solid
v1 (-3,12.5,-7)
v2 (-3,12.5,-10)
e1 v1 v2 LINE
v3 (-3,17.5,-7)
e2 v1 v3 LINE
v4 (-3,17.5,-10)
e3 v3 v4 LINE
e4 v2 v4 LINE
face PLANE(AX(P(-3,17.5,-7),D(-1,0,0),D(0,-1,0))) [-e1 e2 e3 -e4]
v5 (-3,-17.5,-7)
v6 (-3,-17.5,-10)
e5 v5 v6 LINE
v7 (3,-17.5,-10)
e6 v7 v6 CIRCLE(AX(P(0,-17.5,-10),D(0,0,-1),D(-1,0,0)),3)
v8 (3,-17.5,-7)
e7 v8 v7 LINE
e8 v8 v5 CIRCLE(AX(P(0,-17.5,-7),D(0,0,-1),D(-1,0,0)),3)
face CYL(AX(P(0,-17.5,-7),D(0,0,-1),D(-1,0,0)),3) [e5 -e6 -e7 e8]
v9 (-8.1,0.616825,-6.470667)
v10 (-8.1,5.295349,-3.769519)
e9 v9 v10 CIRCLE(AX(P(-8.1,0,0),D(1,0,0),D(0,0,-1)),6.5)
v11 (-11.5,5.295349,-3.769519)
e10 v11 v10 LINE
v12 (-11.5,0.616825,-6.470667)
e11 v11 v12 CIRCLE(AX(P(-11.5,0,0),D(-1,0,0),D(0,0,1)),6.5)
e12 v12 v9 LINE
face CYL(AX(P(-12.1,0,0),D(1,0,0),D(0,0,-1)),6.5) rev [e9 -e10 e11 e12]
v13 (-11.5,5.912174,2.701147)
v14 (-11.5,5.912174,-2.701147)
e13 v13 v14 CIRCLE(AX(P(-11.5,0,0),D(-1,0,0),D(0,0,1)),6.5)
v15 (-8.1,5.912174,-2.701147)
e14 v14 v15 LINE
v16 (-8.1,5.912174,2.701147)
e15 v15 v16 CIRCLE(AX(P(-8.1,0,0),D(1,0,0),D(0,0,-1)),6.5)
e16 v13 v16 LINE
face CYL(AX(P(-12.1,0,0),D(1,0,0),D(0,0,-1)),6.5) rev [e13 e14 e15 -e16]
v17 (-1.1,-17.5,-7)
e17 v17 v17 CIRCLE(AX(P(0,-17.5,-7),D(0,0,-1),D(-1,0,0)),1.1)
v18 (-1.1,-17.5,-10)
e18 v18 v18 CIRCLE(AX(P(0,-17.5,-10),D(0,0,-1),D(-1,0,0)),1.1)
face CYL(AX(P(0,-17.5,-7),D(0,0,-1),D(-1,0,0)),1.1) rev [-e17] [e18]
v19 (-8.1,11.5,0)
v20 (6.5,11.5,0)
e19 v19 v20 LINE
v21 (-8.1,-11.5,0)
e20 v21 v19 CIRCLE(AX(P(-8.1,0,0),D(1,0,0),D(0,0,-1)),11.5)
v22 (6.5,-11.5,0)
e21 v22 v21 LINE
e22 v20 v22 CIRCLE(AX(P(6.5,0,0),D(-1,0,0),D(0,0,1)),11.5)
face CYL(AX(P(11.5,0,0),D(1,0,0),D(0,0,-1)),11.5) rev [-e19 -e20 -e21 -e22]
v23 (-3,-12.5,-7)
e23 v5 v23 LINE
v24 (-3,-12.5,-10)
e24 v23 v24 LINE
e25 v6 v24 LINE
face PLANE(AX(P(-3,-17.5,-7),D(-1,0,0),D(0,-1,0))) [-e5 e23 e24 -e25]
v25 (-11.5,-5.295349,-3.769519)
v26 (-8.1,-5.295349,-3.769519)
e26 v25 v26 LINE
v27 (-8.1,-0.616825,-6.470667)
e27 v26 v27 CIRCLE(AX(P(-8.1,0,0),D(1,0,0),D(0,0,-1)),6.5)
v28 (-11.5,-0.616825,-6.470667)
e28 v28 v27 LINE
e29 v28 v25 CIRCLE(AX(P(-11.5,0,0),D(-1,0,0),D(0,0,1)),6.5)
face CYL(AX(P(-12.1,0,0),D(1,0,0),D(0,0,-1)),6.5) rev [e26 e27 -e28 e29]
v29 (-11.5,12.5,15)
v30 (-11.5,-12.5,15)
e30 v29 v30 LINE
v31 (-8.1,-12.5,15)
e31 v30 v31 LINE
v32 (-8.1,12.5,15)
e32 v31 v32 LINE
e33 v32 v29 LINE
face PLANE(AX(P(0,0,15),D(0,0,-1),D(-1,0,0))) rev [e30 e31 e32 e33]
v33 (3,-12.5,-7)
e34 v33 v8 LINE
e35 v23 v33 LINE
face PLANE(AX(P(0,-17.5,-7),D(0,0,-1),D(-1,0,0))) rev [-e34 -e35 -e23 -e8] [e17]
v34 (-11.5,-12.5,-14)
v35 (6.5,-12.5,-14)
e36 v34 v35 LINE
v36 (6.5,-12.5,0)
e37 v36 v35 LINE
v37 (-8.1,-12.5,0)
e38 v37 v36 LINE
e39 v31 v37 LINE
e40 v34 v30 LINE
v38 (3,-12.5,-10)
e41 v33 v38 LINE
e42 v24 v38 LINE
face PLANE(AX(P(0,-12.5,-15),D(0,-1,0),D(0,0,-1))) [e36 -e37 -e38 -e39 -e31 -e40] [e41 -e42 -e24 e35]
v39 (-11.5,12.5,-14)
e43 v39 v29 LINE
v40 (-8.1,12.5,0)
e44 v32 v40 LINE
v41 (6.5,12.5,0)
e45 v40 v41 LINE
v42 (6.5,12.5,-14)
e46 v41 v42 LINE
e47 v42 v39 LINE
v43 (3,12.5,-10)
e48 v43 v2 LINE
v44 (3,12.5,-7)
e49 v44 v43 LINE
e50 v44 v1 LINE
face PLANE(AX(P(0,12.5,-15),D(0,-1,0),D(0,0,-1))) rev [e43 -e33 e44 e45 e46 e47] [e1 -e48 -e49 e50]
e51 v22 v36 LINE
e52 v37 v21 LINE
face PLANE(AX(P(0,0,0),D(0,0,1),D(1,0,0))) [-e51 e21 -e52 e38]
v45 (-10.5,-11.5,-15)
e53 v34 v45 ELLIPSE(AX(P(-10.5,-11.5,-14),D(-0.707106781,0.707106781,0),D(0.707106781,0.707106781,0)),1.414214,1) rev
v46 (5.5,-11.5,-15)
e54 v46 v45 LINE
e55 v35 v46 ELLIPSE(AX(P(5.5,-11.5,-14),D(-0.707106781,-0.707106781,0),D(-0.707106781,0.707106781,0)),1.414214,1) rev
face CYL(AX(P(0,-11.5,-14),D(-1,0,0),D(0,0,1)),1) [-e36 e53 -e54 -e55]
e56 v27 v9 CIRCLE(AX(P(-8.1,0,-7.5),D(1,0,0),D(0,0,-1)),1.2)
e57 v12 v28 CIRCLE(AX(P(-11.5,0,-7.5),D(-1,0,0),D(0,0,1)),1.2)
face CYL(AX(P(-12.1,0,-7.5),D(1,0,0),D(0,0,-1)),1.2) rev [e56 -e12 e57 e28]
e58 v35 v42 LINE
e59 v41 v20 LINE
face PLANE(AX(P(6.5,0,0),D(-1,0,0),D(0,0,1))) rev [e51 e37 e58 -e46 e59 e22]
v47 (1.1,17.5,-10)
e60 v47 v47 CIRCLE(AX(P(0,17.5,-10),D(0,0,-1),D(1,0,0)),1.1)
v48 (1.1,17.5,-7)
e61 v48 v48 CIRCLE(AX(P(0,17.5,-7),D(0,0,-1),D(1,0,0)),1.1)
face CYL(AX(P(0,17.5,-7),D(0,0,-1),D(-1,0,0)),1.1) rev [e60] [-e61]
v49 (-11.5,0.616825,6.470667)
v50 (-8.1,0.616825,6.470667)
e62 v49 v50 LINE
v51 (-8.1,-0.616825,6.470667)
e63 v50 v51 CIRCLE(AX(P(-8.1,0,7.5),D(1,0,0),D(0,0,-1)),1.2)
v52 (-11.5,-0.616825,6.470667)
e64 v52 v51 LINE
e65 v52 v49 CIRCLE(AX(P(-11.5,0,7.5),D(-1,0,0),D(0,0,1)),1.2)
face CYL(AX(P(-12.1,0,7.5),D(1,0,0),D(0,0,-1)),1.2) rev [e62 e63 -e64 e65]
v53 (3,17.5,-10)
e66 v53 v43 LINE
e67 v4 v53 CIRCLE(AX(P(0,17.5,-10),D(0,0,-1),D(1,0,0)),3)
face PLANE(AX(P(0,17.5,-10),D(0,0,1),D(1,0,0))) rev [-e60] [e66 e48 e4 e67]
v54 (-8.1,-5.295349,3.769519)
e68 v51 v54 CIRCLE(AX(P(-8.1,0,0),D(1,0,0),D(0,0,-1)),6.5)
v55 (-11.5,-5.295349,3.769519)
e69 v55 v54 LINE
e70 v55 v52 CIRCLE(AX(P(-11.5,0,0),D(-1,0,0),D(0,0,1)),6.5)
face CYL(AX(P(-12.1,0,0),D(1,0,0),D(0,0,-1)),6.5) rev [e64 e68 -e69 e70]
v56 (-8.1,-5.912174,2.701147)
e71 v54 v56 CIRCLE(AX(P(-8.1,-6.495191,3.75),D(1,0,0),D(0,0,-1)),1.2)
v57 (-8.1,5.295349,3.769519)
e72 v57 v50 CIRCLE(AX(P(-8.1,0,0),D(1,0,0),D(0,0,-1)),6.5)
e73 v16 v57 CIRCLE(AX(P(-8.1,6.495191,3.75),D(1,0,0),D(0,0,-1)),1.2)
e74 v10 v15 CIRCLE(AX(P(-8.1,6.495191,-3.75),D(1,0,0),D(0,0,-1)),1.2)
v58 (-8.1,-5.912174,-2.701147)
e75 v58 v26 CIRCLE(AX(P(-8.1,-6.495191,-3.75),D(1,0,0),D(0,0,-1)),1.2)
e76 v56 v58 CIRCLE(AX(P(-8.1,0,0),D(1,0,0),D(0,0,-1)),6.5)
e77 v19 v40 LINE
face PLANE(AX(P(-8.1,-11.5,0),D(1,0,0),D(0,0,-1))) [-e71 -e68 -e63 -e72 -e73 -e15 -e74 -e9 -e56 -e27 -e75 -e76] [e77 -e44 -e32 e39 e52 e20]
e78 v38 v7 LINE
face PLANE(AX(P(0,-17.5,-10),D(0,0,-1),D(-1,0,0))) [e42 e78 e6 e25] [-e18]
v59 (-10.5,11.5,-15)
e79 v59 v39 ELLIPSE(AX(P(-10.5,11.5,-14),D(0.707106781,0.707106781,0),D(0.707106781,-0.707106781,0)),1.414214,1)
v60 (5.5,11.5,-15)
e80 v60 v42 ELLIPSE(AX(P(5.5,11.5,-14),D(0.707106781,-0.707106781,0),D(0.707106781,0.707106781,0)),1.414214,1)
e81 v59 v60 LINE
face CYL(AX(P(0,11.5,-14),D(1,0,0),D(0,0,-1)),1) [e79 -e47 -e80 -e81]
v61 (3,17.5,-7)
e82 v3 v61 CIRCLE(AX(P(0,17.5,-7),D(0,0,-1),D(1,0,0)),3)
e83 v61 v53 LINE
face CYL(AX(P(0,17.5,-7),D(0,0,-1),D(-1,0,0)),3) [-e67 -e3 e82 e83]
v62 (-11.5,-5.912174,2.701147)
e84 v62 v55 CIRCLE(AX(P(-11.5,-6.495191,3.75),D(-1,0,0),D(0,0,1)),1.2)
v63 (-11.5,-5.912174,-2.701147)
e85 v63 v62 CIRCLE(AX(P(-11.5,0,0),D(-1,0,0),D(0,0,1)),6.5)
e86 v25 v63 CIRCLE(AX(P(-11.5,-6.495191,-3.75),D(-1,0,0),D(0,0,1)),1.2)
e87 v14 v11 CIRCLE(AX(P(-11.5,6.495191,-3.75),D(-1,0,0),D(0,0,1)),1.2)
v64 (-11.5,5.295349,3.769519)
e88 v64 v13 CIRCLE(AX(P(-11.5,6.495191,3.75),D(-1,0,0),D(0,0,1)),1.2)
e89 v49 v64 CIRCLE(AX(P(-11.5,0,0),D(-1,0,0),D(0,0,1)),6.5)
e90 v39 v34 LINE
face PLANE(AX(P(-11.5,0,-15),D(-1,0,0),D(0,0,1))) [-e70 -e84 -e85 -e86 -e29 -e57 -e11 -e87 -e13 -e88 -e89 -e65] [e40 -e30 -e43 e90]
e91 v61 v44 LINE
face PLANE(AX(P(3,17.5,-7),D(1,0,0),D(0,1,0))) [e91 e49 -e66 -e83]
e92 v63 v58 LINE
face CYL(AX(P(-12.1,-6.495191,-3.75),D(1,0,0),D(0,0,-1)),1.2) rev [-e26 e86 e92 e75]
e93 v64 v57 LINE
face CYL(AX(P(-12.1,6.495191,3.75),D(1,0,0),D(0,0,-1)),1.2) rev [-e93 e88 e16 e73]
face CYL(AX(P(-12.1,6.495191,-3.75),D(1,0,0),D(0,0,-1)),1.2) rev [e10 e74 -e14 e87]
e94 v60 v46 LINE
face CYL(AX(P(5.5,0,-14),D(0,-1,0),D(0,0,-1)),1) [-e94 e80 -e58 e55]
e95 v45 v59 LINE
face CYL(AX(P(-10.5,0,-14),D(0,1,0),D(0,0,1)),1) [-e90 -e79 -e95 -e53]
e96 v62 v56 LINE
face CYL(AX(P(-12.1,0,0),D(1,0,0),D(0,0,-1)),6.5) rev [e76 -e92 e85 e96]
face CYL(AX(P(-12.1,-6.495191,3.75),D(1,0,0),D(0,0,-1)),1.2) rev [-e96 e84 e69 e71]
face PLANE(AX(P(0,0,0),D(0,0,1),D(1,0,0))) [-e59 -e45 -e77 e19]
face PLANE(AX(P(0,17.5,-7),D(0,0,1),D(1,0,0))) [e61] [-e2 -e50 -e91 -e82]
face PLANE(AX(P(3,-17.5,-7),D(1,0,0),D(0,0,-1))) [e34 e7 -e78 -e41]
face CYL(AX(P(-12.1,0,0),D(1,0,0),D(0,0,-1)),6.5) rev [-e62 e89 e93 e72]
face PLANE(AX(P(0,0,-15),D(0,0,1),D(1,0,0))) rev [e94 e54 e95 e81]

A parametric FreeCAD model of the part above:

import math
import FreeCAD as App
import Part
import Sketcher
from FreeCAD import Vector


def edges_at(feature, points):
    """Names of the edges that pass closest to the given points."""
    edges = feature.Shape.Edges
    near = lambda p: min(range(len(edges)), key=lambda i: edges[i].distToShape(Part.Vertex(*p))[0])
    return sorted({f"Edge{near(p) + 1}" for p in points})

doc = App.newDocument("Part")
body = doc.addObject("PartDesign::Body", "Body")

# Sketch on XY plane
sketch1 = doc.addObject("Sketcher::SketchObject", "Sketch")
body.addObject(sketch1)
sketch1.AttachmentSupport = (doc.XY_Plane, [""])
sketch1.MapMode = "FlatFace"
sketch1.addGeometry([
    Part.LineSegment(Vector(-12, 12, 0), Vector(-12, -12, 0)),
    Part.LineSegment(Vector(-12, -12, 0), Vector(12, -12, 0)),
    Part.LineSegment(Vector(12, -12, 0), Vector(12, 12, 0)),
    Part.LineSegment(Vector(12, 12, 0), Vector(-12, 12, 0)),
], False)
sketch1.addConstraint([
    Sketcher.Constraint("Coincident", 0, 2, 1, 1),
    Sketcher.Constraint("Coincident", 1, 2, 2, 1),
    Sketcher.Constraint("Coincident", 2, 2, 3, 1),
    Sketcher.Constraint("Coincident", 3, 2, 0, 1),
    Sketcher.Constraint("Vertical", 0),
    Sketcher.Constraint("Horizontal", 1),
    Sketcher.Constraint("Vertical", 2),
    Sketcher.Constraint("Horizontal", 3),
    Sketcher.Constraint("Symmetric", 0, 2, 2, 2, -1, 1),
    Sketcher.Constraint("DistanceX", 1, 1, 1, 2, 23.0),
    Sketcher.Constraint("DistanceY", 0, 2, 0, 1, 25.0),
])
pad1 = doc.addObject("PartDesign::Pad", "Pad")
body.addObject(pad1)
pad1.Profile = sketch1
pad1.Length = 15
pad1.Reversed = True

# Sketch on XY plane
sketch2 = doc.addObject("Sketcher::SketchObject", "Sketch001")
body.addObject(sketch2)
sketch2.AttachmentSupport = (doc.XY_Plane, [""])
sketch2.MapMode = "FlatFace"
sketch2.addGeometry([
    Part.LineSegment(Vector(-8, 0, 0), Vector(-8, -12, 0)),
    Part.LineSegment(Vector(-8, -12, 0), Vector(12, -12, 0)),
    Part.LineSegment(Vector(12, -12, 0), Vector(12, 0, 0)),
    Part.LineSegment(Vector(12, 0, 0), Vector(-8, 0, 0)),
], False)
sketch2.addConstraint([
    Sketcher.Constraint("Coincident", 0, 2, 1, 1),
    Sketcher.Constraint("Coincident", 1, 2, 2, 1),
    Sketcher.Constraint("Coincident", 2, 2, 3, 1),
    Sketcher.Constraint("Coincident", 3, 2, 0, 1),
    Sketcher.Constraint("Vertical", 0),
    Sketcher.Constraint("Horizontal", 1),
    Sketcher.Constraint("Vertical", 2),
    Sketcher.Constraint("Horizontal", 3),
    Sketcher.Constraint("PointOnObject", 2, 2, -1),
    Sketcher.Constraint("DistanceX", 1, 1, 1, 2, 19.6),
    Sketcher.Constraint("DistanceY", 0, 2, 0, 1, 11.5),
    Sketcher.Constraint("DistanceX", 0, 2, -1, 1, 8.1),
])
groove = doc.addObject("PartDesign::Groove", "Groove")
body.addObject(groove)
groove.Profile = sketch2
groove.ReferenceAxis = (sketch2, ["H_Axis"])
groove.Angle = 360

# Sketch on XY plane
sketch3 = doc.addObject("Sketcher::SketchObject", "Sketch002")
body.addObject(sketch3)
sketch3.AttachmentSupport = (doc.XY_Plane, [""])
sketch3.MapMode = "FlatFace"
sketch3.addGeometry([
    Part.LineSegment(Vector(-11.5, 12.5, 0), Vector(-11.5, -12.5, 0)),
    Part.LineSegment(Vector(-11.5, -12.5, 0), Vector(-8.1, -12.5, 0)),
    Part.LineSegment(Vector(-8.1, -12.5, 0), Vector(-8.1, 12.5, 0)),
    Part.LineSegment(Vector(-8.1, 12.5, 0), Vector(-11.5, 12.5, 0)),
], False)
sketch3.addConstraint([
    Sketcher.Constraint("Coincident", 0, 2, 1, 1),
    Sketcher.Constraint("Coincident", 1, 2, 2, 1),
    Sketcher.Constraint("Coincident", 2, 2, 3, 1),
    Sketcher.Constraint("Coincident", 3, 2, 0, 1),
    Sketcher.Constraint("Vertical", 0),
    Sketcher.Constraint("Horizontal", 1),
    Sketcher.Constraint("Vertical", 2),
    Sketcher.Constraint("Horizontal", 3),
    Sketcher.Constraint("DistanceY", 0, 2, 0, 1, 25.0),
    Sketcher.Constraint("DistanceX", 1, 1, 1, 2, 3.4),
    Sketcher.Constraint("DistanceX", 0, 2, -1, 1, 11.5),
    Sketcher.Constraint("DistanceY", 0, 2, -1, 1, 12.5),
])
pad2 = doc.addObject("PartDesign::Pad", "Pad001")
body.addObject(pad2)
pad2.Profile = sketch3
pad2.Length = 15

# Sketch on YZ plane
sketch4 = doc.addObject("Sketcher::SketchObject", "Sketch003")
body.addObject(sketch4)
sketch4.AttachmentSupport = (doc.YZ_Plane, [""])
sketch4.MapMode = "FlatFace"
sketch4.AttachmentOffset = App.Placement(Vector(0, 0, -8.1), App.Rotation())
sketch4.addGeometry([
    Part.ArcOfCircle(Part.Circle(Vector(0, 0, 0), Vector(0, 0, 1), 6.5), math.radians(155), math.radians(205)),  # 0
    Part.ArcOfCircle(Part.Circle(Vector(-6.5, -3.8, 0), Vector(0, 0, 1), 1.2), math.radians(61), math.radians(359)),  # 1
    Part.ArcOfCircle(Part.Circle(Vector(0, 0, 0), Vector(0, 0, 1), 6.5), math.radians(-145), math.radians(-95)),  # 2
    Part.ArcOfCircle(Part.Circle(Vector(0, -7.5, 0), Vector(0, 0, 1), 1.2), math.radians(121), math.radians(419)),  # 3
    Part.ArcOfCircle(Part.Circle(Vector(0, 0, 0), Vector(0, 0, 1), 6.5), math.radians(-85), math.radians(-35)),  # 4
    Part.ArcOfCircle(Part.Circle(Vector(6.5, -3.8, 0), Vector(0, 0, 1), 1.2), math.radians(-179), math.radians(119)),  # 5
    Part.ArcOfCircle(Part.Circle(Vector(0, 0, 0), Vector(0, 0, 1), 6.5), math.radians(-25), math.radians(25)),  # 6
    Part.ArcOfCircle(Part.Circle(Vector(6.5, 3.8, 0), Vector(0, 0, 1), 1.2), math.radians(-119), math.radians(179)),  # 7
    Part.ArcOfCircle(Part.Circle(Vector(0, 0, 0), Vector(0, 0, 1), 6.5), math.radians(35), math.radians(85)),  # 8
    Part.ArcOfCircle(Part.Circle(Vector(0, 7.5, 0), Vector(0, 0, 1), 1.2), math.radians(-59), math.radians(239)),  # 9
    Part.ArcOfCircle(Part.Circle(Vector(0, 0, 0), Vector(0, 0, 1), 6.5), math.radians(95), math.radians(145)),  # 10
    Part.ArcOfCircle(Part.Circle(Vector(-6.5, 3.8, 0), Vector(0, 0, 1), 1.2), math.radians(1), math.radians(299)),  # 11
], False)
sketch4.addConstraint([
    Sketcher.Constraint("Coincident", 0, 2, 1, 1),
    Sketcher.Constraint("Coincident", 1, 2, 2, 1),
    Sketcher.Constraint("Coincident", 2, 2, 3, 1),
    Sketcher.Constraint("Coincident", 3, 2, 4, 1),
    Sketcher.Constraint("Coincident", 4, 2, 5, 1),
    Sketcher.Constraint("Coincident", 5, 2, 6, 1),
    Sketcher.Constraint("Coincident", 6, 2, 7, 1),
    Sketcher.Constraint("Coincident", 7, 2, 8, 1),
    Sketcher.Constraint("Coincident", 8, 2, 9, 1),
    Sketcher.Constraint("Coincident", 9, 2, 10, 1),
    Sketcher.Constraint("Coincident", 10, 2, 11, 1),
    Sketcher.Constraint("Coincident", 11, 2, 0, 1),
    Sketcher.Constraint("Coincident", 0, 3, -1, 1),
    Sketcher.Constraint("Coincident", 2, 3, -1, 1),
    Sketcher.Constraint("Coincident", 4, 3, -1, 1),
    Sketcher.Constraint("Coincident", 6, 3, -1, 1),
    Sketcher.Constraint("Coincident", 8, 3, -1, 1),
    Sketcher.Constraint("Coincident", 10, 3, -1, 1),
    Sketcher.Constraint("Equal", 0, 2),
    Sketcher.Constraint("Equal", 1, 3),
    Sketcher.Constraint("Equal", 2, 4),
    Sketcher.Constraint("Equal", 3, 5),
    Sketcher.Constraint("Equal", 4, 6),
    Sketcher.Constraint("Equal", 5, 7),
    Sketcher.Constraint("Equal", 6, 8),
    Sketcher.Constraint("Equal", 7, 9),
    Sketcher.Constraint("Equal", 8, 10),
    Sketcher.Constraint("Equal", 9, 11),
    Sketcher.Constraint("Symmetric", 1, 3, 7, 3, -1, 1),
    Sketcher.Constraint("Symmetric", 3, 3, 9, 3, -1, 1),
    Sketcher.Constraint("Symmetric", 5, 3, 11, 3, -1, 1),
    Sketcher.Constraint("Symmetric", 1, 3, 5, 3, -2),
    Sketcher.Constraint("PointOnObject", 3, 3, -2),
    Sketcher.Constraint("Radius", 0, 6.5),
    Sketcher.Constraint("Radius", 1, 1.2),
    Sketcher.Constraint("DistanceY", 3, 3, -1, 1, 7.5),
    Sketcher.Constraint("DistanceY", 5, 3, 7, 3, 7.5),
    Sketcher.Constraint("DistanceX", 1, 3, -1, 1, 6.495191),
])
pocket1 = doc.addObject("PartDesign::Pocket", "Pocket")
body.addObject(pocket1)
pocket1.Profile = sketch4
pocket1.Length = 4

# Sketch on XY plane
sketch5 = doc.addObject("Sketcher::SketchObject", "Sketch004")
body.addObject(sketch5)
sketch5.AttachmentSupport = (doc.XY_Plane, [""])
sketch5.MapMode = "FlatFace"
sketch5.AttachmentOffset = App.Placement(Vector(0, 0, -15), App.Rotation())
sketch5.addGeometry([
    Part.LineSegment(Vector(-3, 12.5, 0), Vector(-3, 17.5, 0)),  # 0
    Part.ArcOfCircle(Part.Circle(Vector(0, 17.5, 0), Vector(0, 0, 1), 3), math.radians(0), math.radians(180)),  # 1
    Part.LineSegment(Vector(3, 17.5, 0), Vector(3, 12.5, 0)),  # 2
    Part.LineSegment(Vector(3, 12.5, 0), Vector(-3, 12.5, 0)),  # 3
    Part.Circle(Vector(0, 17.5, 0), Vector(0, 0, 1), 1.1),  # 4
    Part.LineSegment(Vector(3, -12.5, 0), Vector(3, -17.5, 0)),  # 5
    Part.ArcOfCircle(Part.Circle(Vector(0, -17.5, 0), Vector(0, 0, 1), 3), math.radians(180), math.radians(360)),  # 6
    Part.LineSegment(Vector(-3, -17.5, 0), Vector(-3, -12.5, 0)),  # 7
    Part.LineSegment(Vector(-3, -12.5, 0), Vector(3, -12.5, 0)),  # 8
    Part.Circle(Vector(0, -17.5, 0), Vector(0, 0, 1), 1.1),  # 9
], False)
sketch5.addConstraint([
    Sketcher.Constraint("Tangent", 0, 2, 1, 2),
    Sketcher.Constraint("Tangent", 1, 1, 2, 1),
    Sketcher.Constraint("Coincident", 2, 2, 3, 1),
    Sketcher.Constraint("Coincident", 3, 2, 0, 1),
    Sketcher.Constraint("Tangent", 5, 2, 6, 2),
    Sketcher.Constraint("Tangent", 6, 1, 7, 1),
    Sketcher.Constraint("Coincident", 7, 2, 8, 1),
    Sketcher.Constraint("Coincident", 8, 2, 5, 1),
    Sketcher.Constraint("Vertical", 0),
    Sketcher.Constraint("Vertical", 2),
    Sketcher.Constraint("Horizontal", 3),
    Sketcher.Constraint("Vertical", 5),
    Sketcher.Constraint("Vertical", 7),
    Sketcher.Constraint("Horizontal", 8),
    Sketcher.Constraint("Coincident", 4, 3, 1, 3),
    Sketcher.Constraint("Coincident", 9, 3, 6, 3),
    Sketcher.Constraint("Equal", 1, 6),
    Sketcher.Constraint("Equal", 4, 9),
    Sketcher.Constraint("Symmetric", 1, 3, 6, 3, -1, 1),
    Sketcher.Constraint("Symmetric", 3, 2, 7, 2, -1),
    Sketcher.Constraint("Radius", 1, 3.0),
    Sketcher.Constraint("Diameter", 4, 2.2),
    Sketcher.Constraint("DistanceY", 0, 1, 0, 2, 5.0),
    Sketcher.Constraint("DistanceY", 6, 3, 1, 3, 35.0),
])
pad3 = doc.addObject("PartDesign::Pad", "Pad002")
body.addObject(pad3)
pad3.Profile = sketch5
pad3.Length = 8

# Sketch on XY plane
sketch6 = doc.addObject("Sketcher::SketchObject", "Sketch005")
body.addObject(sketch6)
sketch6.AttachmentSupport = (doc.XY_Plane, [""])
sketch6.MapMode = "FlatFace"
sketch6.AttachmentOffset = App.Placement(Vector(0, 0, -15), App.Rotation())
sketch6.addGeometry([
    Part.LineSegment(Vector(-3, 12.5, 0), Vector(-3, 17.5, 0)),  # 0
    Part.ArcOfCircle(Part.Circle(Vector(0, 17.5, 0), Vector(0, 0, 1), 3), math.radians(0), math.radians(180)),  # 1
    Part.LineSegment(Vector(3, 17.5, 0), Vector(3, 12.5, 0)),  # 2
    Part.LineSegment(Vector(3, 12.5, 0), Vector(-3, 12.5, 0)),  # 3
    Part.Circle(Vector(0, 17.5, 0), Vector(0, 0, 1), 1.1),  # 4
    Part.LineSegment(Vector(3, -12.5, 0), Vector(3, -17.5, 0)),  # 5
    Part.ArcOfCircle(Part.Circle(Vector(0, -17.5, 0), Vector(0, 0, 1), 3), math.radians(180), math.radians(360)),  # 6
    Part.LineSegment(Vector(-3, -17.5, 0), Vector(-3, -12.5, 0)),  # 7
    Part.LineSegment(Vector(-3, -12.5, 0), Vector(3, -12.5, 0)),  # 8
    Part.Circle(Vector(0, -17.5, 0), Vector(0, 0, 1), 1.1),  # 9
], False)
sketch6.addConstraint([
    Sketcher.Constraint("Tangent", 0, 2, 1, 2),
    Sketcher.Constraint("Tangent", 1, 1, 2, 1),
    Sketcher.Constraint("Coincident", 2, 2, 3, 1),
    Sketcher.Constraint("Coincident", 3, 2, 0, 1),
    Sketcher.Constraint("Tangent", 5, 2, 6, 2),
    Sketcher.Constraint("Tangent", 6, 1, 7, 1),
    Sketcher.Constraint("Coincident", 7, 2, 8, 1),
    Sketcher.Constraint("Coincident", 8, 2, 5, 1),
    Sketcher.Constraint("Vertical", 0),
    Sketcher.Constraint("Vertical", 2),
    Sketcher.Constraint("Horizontal", 3),
    Sketcher.Constraint("Vertical", 5),
    Sketcher.Constraint("Vertical", 7),
    Sketcher.Constraint("Horizontal", 8),
    Sketcher.Constraint("Coincident", 4, 3, 1, 3),
    Sketcher.Constraint("Coincident", 9, 3, 6, 3),
    Sketcher.Constraint("Equal", 1, 6),
    Sketcher.Constraint("Equal", 4, 9),
    Sketcher.Constraint("Symmetric", 1, 3, 6, 3, -1, 1),
    Sketcher.Constraint("Symmetric", 3, 2, 7, 2, -1),
    Sketcher.Constraint("Radius", 1, 3.0),
    Sketcher.Constraint("Diameter", 4, 2.2),
    Sketcher.Constraint("DistanceY", 0, 1, 0, 2, 5.0),
    Sketcher.Constraint("DistanceY", 6, 3, 1, 3, 35.0),
])
pocket2 = doc.addObject("PartDesign::Pocket", "Pocket001")
body.addObject(pocket2)
pocket2.Profile = sketch6
pocket2.Length = 5
pocket2.Reversed = True

# Sketch on YZ plane
sketch7 = doc.addObject("Sketcher::SketchObject", "Sketch006")
body.addObject(sketch7)
sketch7.AttachmentSupport = (doc.YZ_Plane, [""])
sketch7.MapMode = "FlatFace"
sketch7.AttachmentOffset = App.Placement(Vector(0, 0, 11.5), App.Rotation())
sketch7.addGeometry([
    Part.LineSegment(Vector(20, 6, 0), Vector(-20, 6, 0)),
    Part.LineSegment(Vector(-20, 6, 0), Vector(-20, -29, 0)),
    Part.LineSegment(Vector(-20, -29, 0), Vector(20, -29, 0)),
    Part.LineSegment(Vector(20, -29, 0), Vector(20, 6, 0)),
], False)
sketch7.addConstraint([
    Sketcher.Constraint("Coincident", 0, 2, 1, 1),
    Sketcher.Constraint("Coincident", 1, 2, 2, 1),
    Sketcher.Constraint("Coincident", 2, 2, 3, 1),
    Sketcher.Constraint("Coincident", 3, 2, 0, 1),
    Sketcher.Constraint("Horizontal", 0),
    Sketcher.Constraint("Vertical", 1),
    Sketcher.Constraint("Horizontal", 2),
    Sketcher.Constraint("Vertical", 3),
    Sketcher.Constraint("DistanceX", 0, 2, 0, 1, 40.0),
    Sketcher.Constraint("DistanceY", 1, 2, 1, 1, 35.0),
    Sketcher.Constraint("DistanceX", 0, 2, -1, 1, 20.0),
    Sketcher.Constraint("DistanceY", -1, 1, 0, 2, 6.0),
])
pocket3 = doc.addObject("PartDesign::Pocket", "Pocket002")
body.addObject(pocket3)
pocket3.Profile = sketch7
pocket3.Length = 5
doc.recompute()

fillet = doc.addObject("PartDesign::Fillet", "Fillet")
body.addObject(fillet)
fillet.Base = (pocket3, edges_at(pocket3, [
    (-2.5, 12.5, -15),
    (-11.5, 0, -15),
    (6.5, 0, -15),
    (-2.5, -12.5, -15),
]))
fillet.Radius = 1

doc.recompute()
